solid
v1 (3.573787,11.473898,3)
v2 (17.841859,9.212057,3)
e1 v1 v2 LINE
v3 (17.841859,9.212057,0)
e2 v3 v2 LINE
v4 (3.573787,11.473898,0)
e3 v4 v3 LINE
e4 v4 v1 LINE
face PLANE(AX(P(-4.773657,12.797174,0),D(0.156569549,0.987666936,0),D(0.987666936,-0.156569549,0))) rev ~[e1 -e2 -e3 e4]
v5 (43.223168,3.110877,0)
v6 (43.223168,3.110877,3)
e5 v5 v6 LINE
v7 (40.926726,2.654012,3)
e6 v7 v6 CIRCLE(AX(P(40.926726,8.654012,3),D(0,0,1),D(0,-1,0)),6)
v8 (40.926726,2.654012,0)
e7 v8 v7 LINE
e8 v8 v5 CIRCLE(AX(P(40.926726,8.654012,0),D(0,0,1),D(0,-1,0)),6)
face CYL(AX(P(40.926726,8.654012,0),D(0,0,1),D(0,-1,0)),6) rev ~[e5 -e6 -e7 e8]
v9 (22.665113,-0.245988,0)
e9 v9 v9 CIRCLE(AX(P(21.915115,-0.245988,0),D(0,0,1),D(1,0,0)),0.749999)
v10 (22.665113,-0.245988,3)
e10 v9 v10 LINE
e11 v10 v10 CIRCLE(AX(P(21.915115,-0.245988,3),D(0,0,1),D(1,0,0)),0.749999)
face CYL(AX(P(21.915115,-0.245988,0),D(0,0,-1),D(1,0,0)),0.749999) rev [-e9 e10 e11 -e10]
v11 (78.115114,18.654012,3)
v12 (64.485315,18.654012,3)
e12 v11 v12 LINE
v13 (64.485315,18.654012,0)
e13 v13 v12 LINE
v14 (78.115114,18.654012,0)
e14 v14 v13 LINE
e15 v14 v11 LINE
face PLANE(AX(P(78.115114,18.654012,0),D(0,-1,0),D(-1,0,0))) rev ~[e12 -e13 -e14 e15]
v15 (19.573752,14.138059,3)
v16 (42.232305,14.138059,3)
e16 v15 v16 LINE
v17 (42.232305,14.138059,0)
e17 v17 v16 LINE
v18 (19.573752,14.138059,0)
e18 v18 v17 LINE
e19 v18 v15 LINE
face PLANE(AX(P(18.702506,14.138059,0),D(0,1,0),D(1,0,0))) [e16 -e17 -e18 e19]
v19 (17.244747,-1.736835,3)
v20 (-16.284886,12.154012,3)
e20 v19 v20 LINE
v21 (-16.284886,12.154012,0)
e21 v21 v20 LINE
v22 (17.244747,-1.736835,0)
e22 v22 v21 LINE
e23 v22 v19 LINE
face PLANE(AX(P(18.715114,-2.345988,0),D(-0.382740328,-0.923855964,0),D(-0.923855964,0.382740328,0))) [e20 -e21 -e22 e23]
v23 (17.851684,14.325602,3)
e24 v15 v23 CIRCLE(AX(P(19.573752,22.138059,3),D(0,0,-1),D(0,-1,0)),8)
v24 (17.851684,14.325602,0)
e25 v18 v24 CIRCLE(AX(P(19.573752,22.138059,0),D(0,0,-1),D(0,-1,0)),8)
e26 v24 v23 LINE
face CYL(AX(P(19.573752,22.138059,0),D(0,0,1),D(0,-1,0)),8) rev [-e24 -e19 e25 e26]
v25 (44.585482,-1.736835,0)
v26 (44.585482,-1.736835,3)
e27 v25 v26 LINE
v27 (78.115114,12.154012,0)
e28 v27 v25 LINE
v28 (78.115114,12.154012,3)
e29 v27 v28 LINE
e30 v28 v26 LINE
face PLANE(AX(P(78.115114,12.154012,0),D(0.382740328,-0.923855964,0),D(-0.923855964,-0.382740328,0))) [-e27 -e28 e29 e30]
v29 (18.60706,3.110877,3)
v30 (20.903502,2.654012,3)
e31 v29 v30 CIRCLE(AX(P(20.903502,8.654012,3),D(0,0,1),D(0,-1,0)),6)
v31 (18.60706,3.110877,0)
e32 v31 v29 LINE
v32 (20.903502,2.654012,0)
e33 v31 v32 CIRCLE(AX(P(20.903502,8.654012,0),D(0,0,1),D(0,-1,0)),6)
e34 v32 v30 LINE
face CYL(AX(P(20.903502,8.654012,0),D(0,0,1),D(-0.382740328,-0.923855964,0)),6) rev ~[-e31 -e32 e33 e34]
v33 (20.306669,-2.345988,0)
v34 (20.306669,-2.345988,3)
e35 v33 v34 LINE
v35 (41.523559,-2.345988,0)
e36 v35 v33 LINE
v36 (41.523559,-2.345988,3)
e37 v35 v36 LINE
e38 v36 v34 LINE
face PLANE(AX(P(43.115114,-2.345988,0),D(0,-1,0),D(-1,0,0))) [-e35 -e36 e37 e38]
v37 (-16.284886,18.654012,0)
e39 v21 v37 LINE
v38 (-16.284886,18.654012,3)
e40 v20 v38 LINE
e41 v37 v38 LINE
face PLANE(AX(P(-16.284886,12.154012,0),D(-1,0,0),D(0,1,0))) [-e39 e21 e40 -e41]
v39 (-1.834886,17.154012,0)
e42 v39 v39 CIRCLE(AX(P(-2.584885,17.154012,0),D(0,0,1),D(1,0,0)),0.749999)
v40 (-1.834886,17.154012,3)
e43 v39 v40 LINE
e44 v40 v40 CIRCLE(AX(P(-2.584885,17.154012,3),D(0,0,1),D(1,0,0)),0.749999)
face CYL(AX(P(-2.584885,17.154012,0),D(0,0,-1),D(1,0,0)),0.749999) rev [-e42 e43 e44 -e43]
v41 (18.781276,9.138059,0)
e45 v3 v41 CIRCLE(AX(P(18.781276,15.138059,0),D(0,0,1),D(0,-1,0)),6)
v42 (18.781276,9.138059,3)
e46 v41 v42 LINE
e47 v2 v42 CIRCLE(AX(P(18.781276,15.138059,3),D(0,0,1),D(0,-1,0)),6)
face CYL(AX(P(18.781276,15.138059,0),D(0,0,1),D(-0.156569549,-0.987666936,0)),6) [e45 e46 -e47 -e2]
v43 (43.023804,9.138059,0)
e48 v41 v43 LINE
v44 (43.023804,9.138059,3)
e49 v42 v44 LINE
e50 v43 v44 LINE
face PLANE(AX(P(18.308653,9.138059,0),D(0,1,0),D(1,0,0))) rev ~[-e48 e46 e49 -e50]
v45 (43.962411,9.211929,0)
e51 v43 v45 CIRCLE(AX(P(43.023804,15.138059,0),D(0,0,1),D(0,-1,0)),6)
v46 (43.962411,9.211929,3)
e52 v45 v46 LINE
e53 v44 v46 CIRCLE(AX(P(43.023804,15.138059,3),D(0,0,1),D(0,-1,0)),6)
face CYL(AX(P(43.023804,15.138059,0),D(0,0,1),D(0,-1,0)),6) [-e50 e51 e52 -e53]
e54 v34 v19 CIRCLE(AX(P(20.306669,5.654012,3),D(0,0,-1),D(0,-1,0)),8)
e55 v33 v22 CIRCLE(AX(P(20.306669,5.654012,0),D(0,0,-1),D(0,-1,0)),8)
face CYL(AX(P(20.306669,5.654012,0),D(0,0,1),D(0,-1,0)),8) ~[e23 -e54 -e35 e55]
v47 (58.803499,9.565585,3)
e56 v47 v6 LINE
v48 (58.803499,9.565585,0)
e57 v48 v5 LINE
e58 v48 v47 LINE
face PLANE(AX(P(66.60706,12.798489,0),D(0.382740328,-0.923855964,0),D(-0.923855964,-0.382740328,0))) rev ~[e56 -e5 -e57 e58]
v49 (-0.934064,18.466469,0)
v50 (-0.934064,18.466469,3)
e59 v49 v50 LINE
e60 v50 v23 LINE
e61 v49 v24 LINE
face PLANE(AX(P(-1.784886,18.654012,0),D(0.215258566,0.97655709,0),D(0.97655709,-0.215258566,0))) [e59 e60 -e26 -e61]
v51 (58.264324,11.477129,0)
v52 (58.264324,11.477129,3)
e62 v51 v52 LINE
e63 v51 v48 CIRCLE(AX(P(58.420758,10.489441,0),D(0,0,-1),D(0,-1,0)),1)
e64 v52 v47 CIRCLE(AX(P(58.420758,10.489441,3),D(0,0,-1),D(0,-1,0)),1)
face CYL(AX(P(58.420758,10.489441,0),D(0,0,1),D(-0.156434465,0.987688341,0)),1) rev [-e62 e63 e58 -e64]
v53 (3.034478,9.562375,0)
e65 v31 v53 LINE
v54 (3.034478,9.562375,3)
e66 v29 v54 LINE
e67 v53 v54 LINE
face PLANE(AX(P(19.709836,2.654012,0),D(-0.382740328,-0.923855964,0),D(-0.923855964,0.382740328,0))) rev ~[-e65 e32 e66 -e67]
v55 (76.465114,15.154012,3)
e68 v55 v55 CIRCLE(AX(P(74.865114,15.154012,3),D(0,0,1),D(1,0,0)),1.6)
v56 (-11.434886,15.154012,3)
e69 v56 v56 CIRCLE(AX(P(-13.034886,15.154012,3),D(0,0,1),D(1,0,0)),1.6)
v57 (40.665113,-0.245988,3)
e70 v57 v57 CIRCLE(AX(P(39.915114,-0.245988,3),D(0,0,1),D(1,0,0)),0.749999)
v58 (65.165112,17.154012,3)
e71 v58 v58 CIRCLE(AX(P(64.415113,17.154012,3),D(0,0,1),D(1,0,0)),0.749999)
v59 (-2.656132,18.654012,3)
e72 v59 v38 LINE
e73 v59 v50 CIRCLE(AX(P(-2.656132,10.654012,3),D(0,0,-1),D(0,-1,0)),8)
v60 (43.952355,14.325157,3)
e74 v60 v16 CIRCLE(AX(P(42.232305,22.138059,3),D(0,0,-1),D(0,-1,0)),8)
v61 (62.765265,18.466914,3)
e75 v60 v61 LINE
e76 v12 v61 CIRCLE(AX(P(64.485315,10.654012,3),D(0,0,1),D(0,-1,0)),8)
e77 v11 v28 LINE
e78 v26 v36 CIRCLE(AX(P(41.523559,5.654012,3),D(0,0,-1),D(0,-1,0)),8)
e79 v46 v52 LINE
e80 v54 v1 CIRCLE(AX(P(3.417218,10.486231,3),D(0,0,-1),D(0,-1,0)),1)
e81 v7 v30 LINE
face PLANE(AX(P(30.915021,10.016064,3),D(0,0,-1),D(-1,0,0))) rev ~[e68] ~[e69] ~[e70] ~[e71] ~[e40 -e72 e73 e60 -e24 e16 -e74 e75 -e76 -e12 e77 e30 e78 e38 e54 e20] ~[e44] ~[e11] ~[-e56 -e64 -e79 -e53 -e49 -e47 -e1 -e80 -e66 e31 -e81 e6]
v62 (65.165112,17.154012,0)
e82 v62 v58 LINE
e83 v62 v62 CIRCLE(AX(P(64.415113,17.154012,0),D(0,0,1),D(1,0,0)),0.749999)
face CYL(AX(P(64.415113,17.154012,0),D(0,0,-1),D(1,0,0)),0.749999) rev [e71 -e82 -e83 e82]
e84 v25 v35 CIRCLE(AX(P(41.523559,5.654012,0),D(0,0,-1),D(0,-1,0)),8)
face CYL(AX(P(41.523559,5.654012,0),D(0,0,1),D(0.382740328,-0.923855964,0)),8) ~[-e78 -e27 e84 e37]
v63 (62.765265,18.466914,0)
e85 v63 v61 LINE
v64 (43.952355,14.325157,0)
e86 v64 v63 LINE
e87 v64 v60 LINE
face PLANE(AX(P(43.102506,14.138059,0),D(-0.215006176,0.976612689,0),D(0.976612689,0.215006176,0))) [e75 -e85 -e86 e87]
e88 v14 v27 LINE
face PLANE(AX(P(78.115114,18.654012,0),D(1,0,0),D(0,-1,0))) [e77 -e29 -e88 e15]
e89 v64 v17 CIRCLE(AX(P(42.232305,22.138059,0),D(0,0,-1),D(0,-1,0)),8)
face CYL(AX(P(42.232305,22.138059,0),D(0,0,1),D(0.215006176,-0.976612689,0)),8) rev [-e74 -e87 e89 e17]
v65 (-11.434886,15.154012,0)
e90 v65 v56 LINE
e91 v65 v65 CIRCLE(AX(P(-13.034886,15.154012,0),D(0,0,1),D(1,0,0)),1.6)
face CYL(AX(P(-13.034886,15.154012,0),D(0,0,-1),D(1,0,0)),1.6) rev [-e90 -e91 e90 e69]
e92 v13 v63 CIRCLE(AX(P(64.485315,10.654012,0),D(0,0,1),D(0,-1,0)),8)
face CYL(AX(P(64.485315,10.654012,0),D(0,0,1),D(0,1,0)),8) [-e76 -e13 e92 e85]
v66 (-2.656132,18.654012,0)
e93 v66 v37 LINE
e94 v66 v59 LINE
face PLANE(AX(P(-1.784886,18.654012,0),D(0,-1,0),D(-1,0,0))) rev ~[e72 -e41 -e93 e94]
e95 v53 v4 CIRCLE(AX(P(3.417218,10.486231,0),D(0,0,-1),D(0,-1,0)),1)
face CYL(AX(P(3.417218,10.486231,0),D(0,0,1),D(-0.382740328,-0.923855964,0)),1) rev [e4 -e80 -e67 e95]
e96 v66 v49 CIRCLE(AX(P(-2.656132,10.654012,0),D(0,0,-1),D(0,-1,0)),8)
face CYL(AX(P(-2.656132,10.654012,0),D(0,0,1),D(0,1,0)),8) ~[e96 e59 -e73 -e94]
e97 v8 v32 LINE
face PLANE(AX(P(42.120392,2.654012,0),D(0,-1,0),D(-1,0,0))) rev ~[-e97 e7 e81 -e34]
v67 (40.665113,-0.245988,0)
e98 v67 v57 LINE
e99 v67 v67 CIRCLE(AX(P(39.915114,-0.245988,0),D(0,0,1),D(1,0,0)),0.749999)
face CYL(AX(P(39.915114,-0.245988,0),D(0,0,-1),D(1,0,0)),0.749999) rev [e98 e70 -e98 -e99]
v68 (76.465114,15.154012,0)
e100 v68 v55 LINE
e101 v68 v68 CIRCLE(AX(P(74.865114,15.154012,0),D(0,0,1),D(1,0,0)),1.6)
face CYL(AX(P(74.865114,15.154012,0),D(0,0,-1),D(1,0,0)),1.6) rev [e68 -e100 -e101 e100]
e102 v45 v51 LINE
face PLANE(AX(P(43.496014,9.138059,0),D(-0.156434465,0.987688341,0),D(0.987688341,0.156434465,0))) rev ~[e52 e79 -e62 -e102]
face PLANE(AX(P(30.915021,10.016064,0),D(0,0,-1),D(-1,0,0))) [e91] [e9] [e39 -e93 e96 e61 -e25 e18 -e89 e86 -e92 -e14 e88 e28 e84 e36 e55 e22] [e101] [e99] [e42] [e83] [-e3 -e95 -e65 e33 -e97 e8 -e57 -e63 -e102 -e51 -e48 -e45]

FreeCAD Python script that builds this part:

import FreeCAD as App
import Part
import Sketcher
from FreeCAD import Vector
Q = App.Units.Quantity


def edges_at(feature, points):
    """Names of the edges that pass closest to the given points."""
    edges = feature.Shape.Edges
    near = lambda p: min(range(len(edges)), key=lambda i: edges[i].distToShape(Part.Vertex(*p))[0])
    return sorted({f"Edge{near(p) + 1}" for p in points})

doc = App.newDocument("Part")
body = doc.addObject("PartDesign::Body", "Body")

# Sketch on XY plane
sketch1 = doc.addObject("Sketcher::SketchObject", "Sketch")
body.addObject(sketch1)
sketch1.AttachmentSupport = (doc.XY_Plane, [""])
sketch1.MapMode = "FlatFace"
sketch1.addGeometry([
    Part.LineSegment(Vector(78.1, 12.2, 0), Vector(78.1, 18.7, 0)),  # 0
    Part.LineSegment(Vector(78.1, 18.7, 0), Vector(63.6, 18.7, 0)),  # 1
    Part.LineSegment(Vector(63.6, 18.7, 0), Vector(43.1, 14.1, 0)),  # 2
    Part.LineSegment(Vector(43.1, 14.1, 0), Vector(18.7, 14.1, 0)),  # 3
    Part.LineSegment(Vector(18.7, 14.1, 0), Vector(-1.8, 18.7, 0)),  # 4
    Part.LineSegment(Vector(-1.8, 18.7, 0), Vector(-16.3, 18.7, 0)),  # 5
    Part.LineSegment(Vector(-16.3, 18.7, 0), Vector(-16.3, 12.2, 0)),  # 6
    Part.LineSegment(Vector(-16.3, 12.2, 0), Vector(18.7, -2.3, 0)),  # 7
    Part.LineSegment(Vector(18.7, -2.3, 0), Vector(43.1, -2.3, 0)),  # 8
    Part.LineSegment(Vector(43.1, -2.3, 0), Vector(78.1, 12.2, 0)),  # 9
    Part.Circle(Vector(39.9, -0.2, 0), Vector(0, 0, 1), 0.7),  # 10
    Part.LineSegment(Vector(19.7, 2.7, 0), Vector(-4.8, 12.8, 0)),  # 11
    Part.LineSegment(Vector(-4.8, 12.8, 0), Vector(18.3, 9.1, 0)),  # 12
    Part.LineSegment(Vector(18.3, 9.1, 0), Vector(43.5, 9.1, 0)),  # 13
    Part.LineSegment(Vector(43.5, 9.1, 0), Vector(66.6, 12.8, 0)),  # 14
    Part.LineSegment(Vector(66.6, 12.8, 0), Vector(42.1, 2.7, 0)),  # 15
    Part.LineSegment(Vector(42.1, 2.7, 0), Vector(19.7, 2.7, 0)),  # 16
    Part.Circle(Vector(21.9, -0.2, 0), Vector(0, 0, 1), 0.7),  # 17
    Part.Circle(Vector(74.9, 15.2, 0), Vector(0, 0, 1), 1.6),  # 18
    Part.Circle(Vector(64.4, 17.2, 0), Vector(0, 0, 1), 0.7),  # 19
    Part.Circle(Vector(-13, 15.2, 0), Vector(0, 0, 1), 1.6),  # 20
    Part.Circle(Vector(-2.6, 17.2, 0), Vector(0, 0, 1), 0.7),  # 21
], False)
sketch1.addConstraint([
    Sketcher.Constraint("Coincident", 0, 2, 1, 1),
    Sketcher.Constraint("Coincident", 1, 2, 2, 1),
    Sketcher.Constraint("Coincident", 2, 2, 3, 1),
    Sketcher.Constraint("Coincident", 3, 2, 4, 1),
    Sketcher.Constraint("Coincident", 4, 2, 5, 1),
    Sketcher.Constraint("Coincident", 5, 2, 6, 1),
    Sketcher.Constraint("Coincident", 6, 2, 7, 1),
    Sketcher.Constraint("Coincident", 7, 2, 8, 1),
    Sketcher.Constraint("Coincident", 8, 2, 9, 1),
    Sketcher.Constraint("Coincident", 9, 2, 0, 1),
    Sketcher.Constraint("Coincident", 11, 2, 12, 1),
    Sketcher.Constraint("Coincident", 12, 2, 13, 1),
    Sketcher.Constraint("Coincident", 13, 2, 14, 1),
    Sketcher.Constraint("Coincident", 14, 2, 15, 1),
    Sketcher.Constraint("Coincident", 15, 2, 16, 1),
    Sketcher.Constraint("Coincident", 16, 2, 11, 1),
    Sketcher.Constraint("Vertical", 0),
    Sketcher.Constraint("Horizontal", 1),
    Sketcher.Constraint("Horizontal", 3),
    Sketcher.Constraint("Horizontal", 5),
    Sketcher.Constraint("Vertical", 6),
    Sketcher.Constraint("Horizontal", 8),
    Sketcher.Constraint("Horizontal", 13),
    Sketcher.Constraint("Horizontal", 16),
    Sketcher.Constraint("Equal", 10, 17),
    Sketcher.Constraint("Equal", 17, 19),
    Sketcher.Constraint("Equal", 18, 20),
    Sketcher.Constraint("Equal", 19, 21),
    Sketcher.Constraint("Parallel", 7, 11),
    Sketcher.Constraint("Parallel", 9, 15),
    Sketcher.Constraint("Horizontal", 10, 3, 17, 3),
    Sketcher.Constraint("Horizontal", 18, 3, 20, 3),
    Sketcher.Constraint("Horizontal", 19, 3, 21, 3),
    Sketcher.Constraint("Horizontal", 1, 2, 4, 2),
    Sketcher.Constraint("Horizontal", 6, 2, 9, 2),
    Sketcher.Constraint("Equal", 1, 5),
    Sketcher.Constraint("Equal", 3, 8),
    Sketcher.Constraint("Equal", 7, 9),
    Sketcher.Constraint("Diameter", 18, 3.2),
    Sketcher.Constraint("Angle", 14, Q("9 deg")),
    Sketcher.Constraint("DistanceX", 1, 2, 1, 1, 14.5),
    Sketcher.Constraint("DistanceX", 3, 2, 3, 1, 24.4),
    Sketcher.Constraint("DistanceY", 0, 1, 0, 2, 6.5),
    Sketcher.Constraint("DistanceX", 17, 3, 10, 3, 18.0),
    Sketcher.Constraint("DistanceY", 18, 3, 19, 3, 2.0),
    Sketcher.Constraint("DistanceX", 21, 3, 19, 3, 66.999998),
    Sketcher.Constraint("DistanceY", 6, 2, 20, 3, 3.0),
    Sketcher.Constraint("DistanceY", 7, 2, 4, 2, 21.0),
    Sketcher.Constraint("DistanceY", 12, 2, 3, 2, 5.0),
    Sketcher.Constraint("DistanceY", 8, 2, 15, 2, 5.0),
    Sketcher.Constraint("DistanceY", 10, 3, 18, 3, 15.400001),
    Sketcher.Constraint("DistanceX", 10, 3, 19, 3, 24.499999),
    Sketcher.Constraint("DistanceX", 20, 3, 18, 3, 87.9),
    Sketcher.Constraint("DistanceX", 19, 3, 0, 2, 13.700001),
    Sketcher.Constraint("DistanceX", 21, 3, 4, 2, 0.799999),
    Sketcher.Constraint("DistanceX", 10, 3, 18, 3, 34.95),
    Sketcher.Constraint("Diameter", 10, 1.499997),
    Sketcher.Constraint("DistanceX", 13, 1, 13, 2, 25.187361),
    Sketcher.Constraint("DistanceX", 10, 3, 13, 2, 3.5809),
    Sketcher.Constraint("Distance", 2, 21.003832),
    Sketcher.Constraint("Distance", 12, 23.37054),
    Sketcher.Constraint("DistanceX", 16, 2, 16, 1, 22.410556),
    Sketcher.Constraint("DistanceY", 10, 3, -1, 1, 0.245988),
    Sketcher.Constraint("DistanceY", -1, 1, 2, 2, 14.138059),
    Sketcher.Constraint("DistanceX", -1, 1, 14, 2, 66.60706),
    Sketcher.Constraint("DistanceY", -1, 1, 14, 2, 12.798489),
])
pad1 = doc.addObject("PartDesign::Pad", "Pad")
body.addObject(pad1)
pad1.Profile = sketch1
pad1.Length = 3
doc.recompute()

fillet = doc.addObject("PartDesign::Fillet", "Fillet")
body.addObject(fillet)
fillet.Base = (pad1, edges_at(pad1, [(66.607, 12.798, 1.5), (-4.774, 12.797, 1.5)]))
fillet.Radius = 1
doc.recompute()

fillet2 = doc.addObject("PartDesign::Fillet", "Fillet001")
body.addObject(fillet2)
fillet2.Base = (fillet, edges_at(fillet, [
    (19.71, 2.654, 1.5),
    (42.12, 2.654, 1.5),
    (43.496, 9.138, 1.5),
    (18.309, 9.138, 1.5),
]))
fillet2.Radius = 6
doc.recompute()

fillet3 = doc.addObject("PartDesign::Fillet", "Fillet002")
body.addObject(fillet3)
fillet3.Base = (fillet2, edges_at(fillet2, [
    (43.115, -2.346, 1.5),
    (18.715, -2.346, 1.5),
    (18.703, 14.138, 1.5),
    (43.103, 14.138, 1.5),
]))
fillet3.Radius = 8
doc.recompute()

fillet4 = doc.addObject("PartDesign::Fillet", "Fillet003")
body.addObject(fillet4)
fillet4.Base = (fillet3, edges_at(fillet3, [(-1.785, 18.654, 1.5), (63.615, 18.654, 1.5)]))
fillet4.Radius = 8

doc.recompute()
